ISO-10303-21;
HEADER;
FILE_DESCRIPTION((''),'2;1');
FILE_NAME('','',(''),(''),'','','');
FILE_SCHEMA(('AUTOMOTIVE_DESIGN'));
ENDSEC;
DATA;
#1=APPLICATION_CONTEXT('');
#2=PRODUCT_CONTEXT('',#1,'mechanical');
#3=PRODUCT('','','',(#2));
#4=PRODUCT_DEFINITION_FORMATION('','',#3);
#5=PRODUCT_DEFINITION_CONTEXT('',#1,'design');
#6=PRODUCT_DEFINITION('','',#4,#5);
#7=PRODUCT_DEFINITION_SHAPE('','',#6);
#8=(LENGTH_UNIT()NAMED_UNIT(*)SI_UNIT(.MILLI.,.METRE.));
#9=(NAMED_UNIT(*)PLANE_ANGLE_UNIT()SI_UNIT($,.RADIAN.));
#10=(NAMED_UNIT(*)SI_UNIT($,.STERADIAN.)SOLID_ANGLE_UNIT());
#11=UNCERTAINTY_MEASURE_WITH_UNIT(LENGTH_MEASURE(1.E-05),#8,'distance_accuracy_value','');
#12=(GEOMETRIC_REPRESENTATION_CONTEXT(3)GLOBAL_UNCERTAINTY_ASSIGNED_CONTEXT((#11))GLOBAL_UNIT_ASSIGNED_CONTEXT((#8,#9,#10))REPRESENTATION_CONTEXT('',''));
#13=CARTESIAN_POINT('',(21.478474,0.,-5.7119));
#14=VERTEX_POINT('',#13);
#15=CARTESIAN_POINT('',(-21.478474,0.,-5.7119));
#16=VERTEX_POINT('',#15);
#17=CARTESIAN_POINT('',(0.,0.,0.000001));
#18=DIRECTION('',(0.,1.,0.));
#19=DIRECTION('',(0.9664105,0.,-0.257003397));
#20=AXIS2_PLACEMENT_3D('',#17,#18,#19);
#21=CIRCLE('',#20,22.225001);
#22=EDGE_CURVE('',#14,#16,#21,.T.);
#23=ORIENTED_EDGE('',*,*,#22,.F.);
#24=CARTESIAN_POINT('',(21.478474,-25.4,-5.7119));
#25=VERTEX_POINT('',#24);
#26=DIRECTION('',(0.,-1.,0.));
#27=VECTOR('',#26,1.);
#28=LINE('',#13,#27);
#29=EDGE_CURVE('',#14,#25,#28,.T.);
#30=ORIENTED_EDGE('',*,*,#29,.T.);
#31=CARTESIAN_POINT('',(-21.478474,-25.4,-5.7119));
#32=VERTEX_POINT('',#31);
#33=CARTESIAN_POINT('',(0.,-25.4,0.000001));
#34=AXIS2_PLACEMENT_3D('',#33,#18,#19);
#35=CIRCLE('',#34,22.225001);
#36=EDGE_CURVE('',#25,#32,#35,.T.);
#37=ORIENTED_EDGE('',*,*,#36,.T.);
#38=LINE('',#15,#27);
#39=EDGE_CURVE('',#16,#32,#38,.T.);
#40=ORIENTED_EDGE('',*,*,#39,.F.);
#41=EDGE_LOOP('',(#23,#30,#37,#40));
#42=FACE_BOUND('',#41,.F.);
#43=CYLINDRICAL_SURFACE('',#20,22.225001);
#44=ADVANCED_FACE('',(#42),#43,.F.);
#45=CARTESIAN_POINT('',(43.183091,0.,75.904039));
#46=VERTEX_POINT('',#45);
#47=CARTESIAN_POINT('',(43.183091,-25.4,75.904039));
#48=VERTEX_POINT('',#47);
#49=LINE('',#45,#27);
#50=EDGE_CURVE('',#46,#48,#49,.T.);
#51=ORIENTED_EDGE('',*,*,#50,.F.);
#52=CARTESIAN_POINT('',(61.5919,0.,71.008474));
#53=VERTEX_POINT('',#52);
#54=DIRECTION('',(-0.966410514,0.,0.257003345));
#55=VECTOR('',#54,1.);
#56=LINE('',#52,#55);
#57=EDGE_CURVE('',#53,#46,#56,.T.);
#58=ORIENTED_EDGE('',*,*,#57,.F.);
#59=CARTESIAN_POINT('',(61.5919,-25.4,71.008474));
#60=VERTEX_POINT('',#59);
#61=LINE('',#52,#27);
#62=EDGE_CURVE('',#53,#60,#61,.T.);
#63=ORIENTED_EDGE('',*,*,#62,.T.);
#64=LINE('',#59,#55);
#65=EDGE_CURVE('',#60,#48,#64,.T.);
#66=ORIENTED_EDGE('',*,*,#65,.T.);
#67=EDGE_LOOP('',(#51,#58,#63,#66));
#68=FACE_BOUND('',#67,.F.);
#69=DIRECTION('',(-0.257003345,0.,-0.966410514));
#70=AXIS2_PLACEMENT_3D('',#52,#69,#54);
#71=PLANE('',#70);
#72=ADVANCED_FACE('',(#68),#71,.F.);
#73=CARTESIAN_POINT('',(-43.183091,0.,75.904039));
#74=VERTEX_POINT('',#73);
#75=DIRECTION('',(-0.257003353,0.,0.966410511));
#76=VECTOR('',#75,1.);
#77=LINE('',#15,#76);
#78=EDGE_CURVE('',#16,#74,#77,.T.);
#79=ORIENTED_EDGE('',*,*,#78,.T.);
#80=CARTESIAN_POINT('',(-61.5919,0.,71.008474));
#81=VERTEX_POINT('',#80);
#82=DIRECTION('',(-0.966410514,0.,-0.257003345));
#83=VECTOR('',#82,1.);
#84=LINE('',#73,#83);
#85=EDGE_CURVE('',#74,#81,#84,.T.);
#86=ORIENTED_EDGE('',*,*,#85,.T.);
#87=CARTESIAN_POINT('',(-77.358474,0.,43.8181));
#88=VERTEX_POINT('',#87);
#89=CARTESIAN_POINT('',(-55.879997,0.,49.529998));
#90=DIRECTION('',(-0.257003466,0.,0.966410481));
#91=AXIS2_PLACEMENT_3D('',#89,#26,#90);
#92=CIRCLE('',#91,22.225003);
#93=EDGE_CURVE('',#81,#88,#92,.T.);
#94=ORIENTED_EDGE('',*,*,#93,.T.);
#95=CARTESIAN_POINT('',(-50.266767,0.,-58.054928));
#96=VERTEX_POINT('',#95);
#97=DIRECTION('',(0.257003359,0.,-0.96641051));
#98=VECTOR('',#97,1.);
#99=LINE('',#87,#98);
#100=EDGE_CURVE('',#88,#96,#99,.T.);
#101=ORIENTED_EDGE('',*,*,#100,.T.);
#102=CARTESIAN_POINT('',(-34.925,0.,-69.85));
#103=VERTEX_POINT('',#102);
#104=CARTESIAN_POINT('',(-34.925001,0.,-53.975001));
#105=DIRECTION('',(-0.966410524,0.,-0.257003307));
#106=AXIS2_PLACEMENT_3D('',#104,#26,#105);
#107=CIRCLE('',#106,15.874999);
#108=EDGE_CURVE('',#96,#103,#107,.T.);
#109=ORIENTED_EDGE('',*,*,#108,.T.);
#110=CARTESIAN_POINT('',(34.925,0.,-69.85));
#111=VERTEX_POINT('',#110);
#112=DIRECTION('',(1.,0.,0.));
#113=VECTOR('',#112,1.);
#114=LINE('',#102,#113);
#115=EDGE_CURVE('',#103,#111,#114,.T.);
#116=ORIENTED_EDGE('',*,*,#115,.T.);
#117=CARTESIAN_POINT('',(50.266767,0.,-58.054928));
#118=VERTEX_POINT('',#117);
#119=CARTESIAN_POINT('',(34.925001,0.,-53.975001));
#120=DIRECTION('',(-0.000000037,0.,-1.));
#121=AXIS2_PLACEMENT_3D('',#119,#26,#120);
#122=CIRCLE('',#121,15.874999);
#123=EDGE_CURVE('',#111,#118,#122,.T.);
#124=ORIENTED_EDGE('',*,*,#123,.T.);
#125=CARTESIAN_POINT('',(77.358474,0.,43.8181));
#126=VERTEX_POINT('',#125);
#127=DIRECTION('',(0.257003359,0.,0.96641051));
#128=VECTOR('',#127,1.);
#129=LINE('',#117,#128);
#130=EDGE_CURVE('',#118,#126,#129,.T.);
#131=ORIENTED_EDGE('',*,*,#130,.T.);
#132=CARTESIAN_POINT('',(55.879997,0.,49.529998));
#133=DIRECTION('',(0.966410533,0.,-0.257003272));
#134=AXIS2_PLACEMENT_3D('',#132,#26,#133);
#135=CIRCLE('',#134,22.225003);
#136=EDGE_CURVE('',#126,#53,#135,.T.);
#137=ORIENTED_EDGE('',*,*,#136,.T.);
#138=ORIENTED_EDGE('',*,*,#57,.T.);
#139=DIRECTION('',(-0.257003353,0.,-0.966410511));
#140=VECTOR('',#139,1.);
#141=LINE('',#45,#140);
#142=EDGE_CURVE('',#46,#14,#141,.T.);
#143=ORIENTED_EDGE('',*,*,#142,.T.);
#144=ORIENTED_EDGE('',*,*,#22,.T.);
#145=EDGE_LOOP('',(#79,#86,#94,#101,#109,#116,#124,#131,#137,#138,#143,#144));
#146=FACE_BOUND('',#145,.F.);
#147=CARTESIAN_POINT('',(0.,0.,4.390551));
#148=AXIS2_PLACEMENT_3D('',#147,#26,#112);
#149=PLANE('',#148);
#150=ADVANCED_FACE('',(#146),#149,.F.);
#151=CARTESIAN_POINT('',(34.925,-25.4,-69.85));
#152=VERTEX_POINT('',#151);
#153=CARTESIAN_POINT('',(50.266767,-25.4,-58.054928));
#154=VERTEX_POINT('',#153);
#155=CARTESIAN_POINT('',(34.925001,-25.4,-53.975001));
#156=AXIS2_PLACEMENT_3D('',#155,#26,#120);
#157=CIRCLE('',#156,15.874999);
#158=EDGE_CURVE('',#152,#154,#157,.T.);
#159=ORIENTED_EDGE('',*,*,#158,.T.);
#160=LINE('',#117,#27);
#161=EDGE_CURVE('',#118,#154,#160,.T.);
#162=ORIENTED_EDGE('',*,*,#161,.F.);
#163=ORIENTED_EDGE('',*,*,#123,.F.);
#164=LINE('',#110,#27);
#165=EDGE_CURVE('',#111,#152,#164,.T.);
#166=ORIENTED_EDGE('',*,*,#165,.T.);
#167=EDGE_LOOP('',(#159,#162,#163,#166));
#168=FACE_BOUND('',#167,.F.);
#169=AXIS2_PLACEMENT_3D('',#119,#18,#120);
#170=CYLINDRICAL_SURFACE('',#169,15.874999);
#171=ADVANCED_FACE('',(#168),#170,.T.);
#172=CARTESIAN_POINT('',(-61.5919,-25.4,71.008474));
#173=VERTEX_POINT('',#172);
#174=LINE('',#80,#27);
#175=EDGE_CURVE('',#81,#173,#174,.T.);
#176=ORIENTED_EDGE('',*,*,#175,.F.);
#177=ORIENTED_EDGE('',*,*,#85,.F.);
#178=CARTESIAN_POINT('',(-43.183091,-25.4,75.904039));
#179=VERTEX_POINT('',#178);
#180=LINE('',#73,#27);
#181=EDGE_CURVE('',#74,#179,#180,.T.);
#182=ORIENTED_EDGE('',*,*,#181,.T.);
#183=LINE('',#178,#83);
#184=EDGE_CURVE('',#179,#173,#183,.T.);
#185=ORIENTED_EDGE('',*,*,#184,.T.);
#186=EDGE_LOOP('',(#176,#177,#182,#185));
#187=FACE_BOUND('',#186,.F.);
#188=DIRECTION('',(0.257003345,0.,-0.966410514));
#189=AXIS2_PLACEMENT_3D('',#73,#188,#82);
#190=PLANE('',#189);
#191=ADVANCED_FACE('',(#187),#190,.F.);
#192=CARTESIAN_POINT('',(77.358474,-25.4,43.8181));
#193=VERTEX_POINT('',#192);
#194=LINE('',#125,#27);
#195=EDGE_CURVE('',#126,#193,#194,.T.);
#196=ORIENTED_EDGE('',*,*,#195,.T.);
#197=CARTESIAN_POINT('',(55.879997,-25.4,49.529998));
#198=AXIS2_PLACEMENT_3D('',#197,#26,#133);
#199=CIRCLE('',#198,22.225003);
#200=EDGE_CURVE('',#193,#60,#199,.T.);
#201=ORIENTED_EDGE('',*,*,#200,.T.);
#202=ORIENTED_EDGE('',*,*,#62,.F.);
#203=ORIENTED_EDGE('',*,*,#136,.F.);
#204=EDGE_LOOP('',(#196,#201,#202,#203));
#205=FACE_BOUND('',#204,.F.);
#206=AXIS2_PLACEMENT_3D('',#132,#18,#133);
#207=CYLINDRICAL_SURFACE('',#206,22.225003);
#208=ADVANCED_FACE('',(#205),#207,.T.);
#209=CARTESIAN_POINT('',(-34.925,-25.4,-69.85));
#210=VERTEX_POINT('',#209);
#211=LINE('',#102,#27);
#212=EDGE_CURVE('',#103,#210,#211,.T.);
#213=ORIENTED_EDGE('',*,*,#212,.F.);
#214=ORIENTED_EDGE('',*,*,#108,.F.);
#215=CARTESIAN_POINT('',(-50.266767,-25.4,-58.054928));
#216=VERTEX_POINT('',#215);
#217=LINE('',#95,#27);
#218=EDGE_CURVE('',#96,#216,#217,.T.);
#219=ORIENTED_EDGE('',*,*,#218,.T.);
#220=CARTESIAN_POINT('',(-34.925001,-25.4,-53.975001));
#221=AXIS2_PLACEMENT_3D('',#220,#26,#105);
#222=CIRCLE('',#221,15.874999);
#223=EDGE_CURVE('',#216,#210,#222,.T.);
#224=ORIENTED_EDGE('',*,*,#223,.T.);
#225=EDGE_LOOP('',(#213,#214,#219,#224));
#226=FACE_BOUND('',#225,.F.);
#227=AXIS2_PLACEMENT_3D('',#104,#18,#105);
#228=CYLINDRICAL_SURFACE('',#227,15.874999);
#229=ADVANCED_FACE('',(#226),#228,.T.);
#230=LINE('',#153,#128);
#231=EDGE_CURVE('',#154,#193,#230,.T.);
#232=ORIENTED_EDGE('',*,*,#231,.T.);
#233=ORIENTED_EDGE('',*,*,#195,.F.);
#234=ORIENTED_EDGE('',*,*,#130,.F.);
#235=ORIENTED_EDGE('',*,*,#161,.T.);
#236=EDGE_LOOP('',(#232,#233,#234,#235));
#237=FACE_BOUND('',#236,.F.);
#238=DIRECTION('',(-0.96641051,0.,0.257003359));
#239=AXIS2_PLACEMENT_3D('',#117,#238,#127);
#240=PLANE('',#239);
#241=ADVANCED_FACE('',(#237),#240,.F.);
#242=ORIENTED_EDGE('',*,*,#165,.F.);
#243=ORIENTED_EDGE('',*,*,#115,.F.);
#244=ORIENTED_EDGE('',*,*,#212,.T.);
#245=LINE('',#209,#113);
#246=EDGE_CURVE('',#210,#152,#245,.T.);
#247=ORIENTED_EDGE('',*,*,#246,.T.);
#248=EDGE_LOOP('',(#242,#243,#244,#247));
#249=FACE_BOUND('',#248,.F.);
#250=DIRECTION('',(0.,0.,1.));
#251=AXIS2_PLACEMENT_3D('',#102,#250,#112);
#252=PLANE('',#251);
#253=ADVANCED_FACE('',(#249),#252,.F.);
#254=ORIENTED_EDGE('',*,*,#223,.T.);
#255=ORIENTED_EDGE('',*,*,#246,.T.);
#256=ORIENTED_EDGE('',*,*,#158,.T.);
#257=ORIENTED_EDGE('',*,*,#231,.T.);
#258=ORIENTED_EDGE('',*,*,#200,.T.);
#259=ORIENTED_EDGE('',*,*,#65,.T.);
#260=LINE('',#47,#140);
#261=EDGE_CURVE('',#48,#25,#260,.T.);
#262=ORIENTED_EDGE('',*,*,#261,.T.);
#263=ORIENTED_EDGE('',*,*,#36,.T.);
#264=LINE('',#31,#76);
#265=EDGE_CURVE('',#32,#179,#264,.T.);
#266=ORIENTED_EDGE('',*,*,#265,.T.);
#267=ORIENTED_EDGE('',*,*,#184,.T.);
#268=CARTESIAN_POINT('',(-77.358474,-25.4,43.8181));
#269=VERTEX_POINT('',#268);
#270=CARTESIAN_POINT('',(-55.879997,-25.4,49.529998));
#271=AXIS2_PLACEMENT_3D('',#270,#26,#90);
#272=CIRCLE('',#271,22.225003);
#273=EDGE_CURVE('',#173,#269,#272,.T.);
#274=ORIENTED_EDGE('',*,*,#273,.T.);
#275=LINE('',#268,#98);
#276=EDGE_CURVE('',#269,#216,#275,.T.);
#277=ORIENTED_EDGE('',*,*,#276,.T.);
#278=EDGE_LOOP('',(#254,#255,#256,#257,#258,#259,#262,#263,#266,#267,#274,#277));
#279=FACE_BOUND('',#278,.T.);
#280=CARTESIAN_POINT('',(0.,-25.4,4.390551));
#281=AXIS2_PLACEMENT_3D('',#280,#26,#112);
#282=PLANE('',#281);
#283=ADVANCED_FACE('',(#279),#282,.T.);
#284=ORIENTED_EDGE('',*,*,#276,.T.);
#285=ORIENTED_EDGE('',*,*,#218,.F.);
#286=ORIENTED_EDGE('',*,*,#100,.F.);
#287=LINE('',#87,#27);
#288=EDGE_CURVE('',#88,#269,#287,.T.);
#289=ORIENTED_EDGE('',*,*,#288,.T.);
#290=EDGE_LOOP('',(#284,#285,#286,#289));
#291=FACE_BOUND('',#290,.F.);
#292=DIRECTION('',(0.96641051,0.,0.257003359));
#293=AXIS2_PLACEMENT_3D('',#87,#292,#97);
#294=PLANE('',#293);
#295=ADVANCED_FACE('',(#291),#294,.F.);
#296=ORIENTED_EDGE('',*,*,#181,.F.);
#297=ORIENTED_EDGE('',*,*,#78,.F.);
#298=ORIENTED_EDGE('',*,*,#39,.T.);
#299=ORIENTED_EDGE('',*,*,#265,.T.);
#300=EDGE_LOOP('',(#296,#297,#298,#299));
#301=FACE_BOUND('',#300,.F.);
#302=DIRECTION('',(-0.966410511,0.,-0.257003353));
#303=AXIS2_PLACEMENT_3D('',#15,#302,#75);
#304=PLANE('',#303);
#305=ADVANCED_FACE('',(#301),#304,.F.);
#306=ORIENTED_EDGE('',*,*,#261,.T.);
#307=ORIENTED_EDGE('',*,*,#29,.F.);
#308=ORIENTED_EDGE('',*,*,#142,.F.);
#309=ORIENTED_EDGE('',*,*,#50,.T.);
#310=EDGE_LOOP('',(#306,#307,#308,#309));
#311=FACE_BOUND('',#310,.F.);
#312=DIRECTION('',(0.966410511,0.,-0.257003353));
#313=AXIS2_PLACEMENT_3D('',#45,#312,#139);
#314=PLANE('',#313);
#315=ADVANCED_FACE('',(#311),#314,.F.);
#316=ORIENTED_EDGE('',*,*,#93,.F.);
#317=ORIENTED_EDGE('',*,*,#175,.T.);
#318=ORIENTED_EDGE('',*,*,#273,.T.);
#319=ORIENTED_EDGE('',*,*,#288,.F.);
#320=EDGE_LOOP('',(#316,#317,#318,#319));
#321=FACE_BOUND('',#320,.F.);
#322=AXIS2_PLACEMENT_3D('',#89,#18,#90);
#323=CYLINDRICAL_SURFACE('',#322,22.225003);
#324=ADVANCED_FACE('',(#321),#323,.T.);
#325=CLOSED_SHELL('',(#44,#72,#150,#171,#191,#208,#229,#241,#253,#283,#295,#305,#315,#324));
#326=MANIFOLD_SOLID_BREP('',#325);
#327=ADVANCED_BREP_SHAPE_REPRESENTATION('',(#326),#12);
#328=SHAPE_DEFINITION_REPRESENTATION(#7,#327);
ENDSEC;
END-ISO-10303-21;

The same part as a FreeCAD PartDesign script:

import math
import FreeCAD as App
import Part
import Sketcher

V = App.Vector
Q = App.Units.Quantity

doc = App.newDocument("Part")
params = doc.addObject("Spreadsheet::Sheet", "Params")
for row, (alias, value) in enumerate([
    ("sketch1_radius", "0.625 in"),
    ("sketch1_radius2", "0.8750001 in"),
    ("sketch1_radius3", "0.875 in"),
    ("sketch1_width", "2.75 in"),
    ("pad1_length", "1 in"),
], start=1):
    params.set(f"A{row}", alias)
    params.set(f"B{row}", "=" + value)
    params.setAlias(f"B{row}", alias)

body = doc.addObject("PartDesign::Body", "Body")

# Sketch on XZ plane
sketch1 = doc.addObject("Sketcher::SketchObject", "Sketch")
body.addObject(sketch1)
sketch1.AttachmentSupport = (doc.XZ_Plane, [""])
sketch1.MapMode = "FlatFace"
sketch1.addGeometry(Part.ArcOfCircle(Part.Circle(V(-35, -54, 0), V(0, 0, 1), 16), math.radians(-165), math.radians(-90)), False)
sketch1.addGeometry(Part.LineSegment(V(-35, -70, 0), V(35, -70, 0)), False)
sketch1.addGeometry(Part.ArcOfCircle(Part.Circle(V(35, -54, 0), V(0, 0, 1), 16), math.radians(-90), math.radians(-15)), False)
sketch1.addGeometry(Part.LineSegment(V(50, -58, 0), V(77, 44, 0)), False)
sketch1.addGeometry(Part.ArcOfCircle(Part.Circle(V(56, 50, 0), V(0, 0, 1), 22), math.radians(-15), math.radians(75)), False)
sketch1.addGeometry(Part.LineSegment(V(62, 71, 0), V(43, 76, 0)), False)
sketch1.addGeometry(Part.LineSegment(V(43, 76, 0), V(21, -6, 0)), False)
sketch1.addGeometry(Part.ArcOfCircle(Part.Circle(V(0, 0, 0), V(0, 0, 1), 22), math.radians(-165), math.radians(-15)), False)
sketch1.addGeometry(Part.LineSegment(V(-21, -6, 0), V(-43, 76, 0)), False)
sketch1.addGeometry(Part.LineSegment(V(-43, 76, 0), V(-62, 71, 0)), False)
sketch1.addGeometry(Part.ArcOfCircle(Part.Circle(V(-56, 50, 0), V(0, 0, 1), 22), math.radians(105), math.radians(195)), False)
sketch1.addGeometry(Part.LineSegment(V(-77, 44, 0), V(-50, -58, 0)), False)
sketch1.addConstraint(Sketcher.Constraint("Tangent", 0, 2, 1, 1))
sketch1.addConstraint(Sketcher.Constraint("Tangent", 1, 2, 2, 1))
sketch1.addConstraint(Sketcher.Constraint("Tangent", 2, 2, 3, 1))
sketch1.addConstraint(Sketcher.Constraint("Tangent", 3, 2, 4, 1))
sketch1.addConstraint(Sketcher.Constraint("Tangent", 4, 2, 5, 1))
sketch1.addConstraint(Sketcher.Constraint("Coincident", 5, 2, 6, 1))
sketch1.addConstraint(Sketcher.Constraint("Tangent", 6, 2, 7, 2))
sketch1.addConstraint(Sketcher.Constraint("Tangent", 7, 1, 8, 1))
sketch1.addConstraint(Sketcher.Constraint("Coincident", 8, 2, 9, 1))
sketch1.addConstraint(Sketcher.Constraint("Tangent", 9, 2, 10, 1))
sketch1.addConstraint(Sketcher.Constraint("Tangent", 10, 2, 11, 1))
sketch1.addConstraint(Sketcher.Constraint("Tangent", 11, 2, 0, 1))
sketch1.addConstraint(Sketcher.Constraint("Horizontal", 1))
sketch1.addConstraint(Sketcher.Constraint("Coincident", 7, 3, -1, 1))
sketch1.addConstraint(Sketcher.Constraint("Equal", 0, 2))
sketch1.addConstraint(Sketcher.Constraint("Equal", 4, 10))
sketch1.addConstraint(Sketcher.Constraint("Symmetric", 4, 3, 10, 3, -2))
sketch1.addConstraint(Sketcher.Constraint("Symmetric", 5, 2, 8, 2, -2))
sketch1.addConstraint(Sketcher.Constraint("Perpendicular", 3, 5))
sketch1.addConstraint(Sketcher.Constraint("Perpendicular", 5, 6))
sketch1.addConstraint(Sketcher.Constraint("Perpendicular", 9, 11))
sketch1.addConstraint(Sketcher.Constraint("Radius", 0, Q("0.625 in")))
sketch1.addConstraint(Sketcher.Constraint("Radius", 4, Q("0.8750001 in")))
sketch1.addConstraint(Sketcher.Constraint("Radius", 7, Q("0.875 in")))
sketch1.addConstraint(Sketcher.Constraint("DistanceX", 1, 1, 1, 2, Q("2.75 in")))
sketch1.addConstraint(Sketcher.Constraint("DistanceX", -1, 1, 4, 3, Q("2.1999999 in")))
sketch1.addConstraint(Sketcher.Constraint("DistanceY", 0, 2, 10, 3, Q("4.6999999 in")))
sketch1.addConstraint(Sketcher.Constraint("DistanceY", -1, 1, 4, 3, Q("1.9499999 in")))
sketch1.setExpression("Constraints[21]", "Params.sketch1_radius")
sketch1.setExpression("Constraints[22]", "Params.sketch1_radius2")
sketch1.setExpression("Constraints[23]", "Params.sketch1_radius3")
sketch1.setExpression("Constraints[24]", "Params.sketch1_width")
pad1 = doc.addObject("PartDesign::Pad", "Pad")
body.addObject(pad1)
pad1.Profile = sketch1
pad1.setExpression("Length", "Params.pad1_length")

doc.recompute()
